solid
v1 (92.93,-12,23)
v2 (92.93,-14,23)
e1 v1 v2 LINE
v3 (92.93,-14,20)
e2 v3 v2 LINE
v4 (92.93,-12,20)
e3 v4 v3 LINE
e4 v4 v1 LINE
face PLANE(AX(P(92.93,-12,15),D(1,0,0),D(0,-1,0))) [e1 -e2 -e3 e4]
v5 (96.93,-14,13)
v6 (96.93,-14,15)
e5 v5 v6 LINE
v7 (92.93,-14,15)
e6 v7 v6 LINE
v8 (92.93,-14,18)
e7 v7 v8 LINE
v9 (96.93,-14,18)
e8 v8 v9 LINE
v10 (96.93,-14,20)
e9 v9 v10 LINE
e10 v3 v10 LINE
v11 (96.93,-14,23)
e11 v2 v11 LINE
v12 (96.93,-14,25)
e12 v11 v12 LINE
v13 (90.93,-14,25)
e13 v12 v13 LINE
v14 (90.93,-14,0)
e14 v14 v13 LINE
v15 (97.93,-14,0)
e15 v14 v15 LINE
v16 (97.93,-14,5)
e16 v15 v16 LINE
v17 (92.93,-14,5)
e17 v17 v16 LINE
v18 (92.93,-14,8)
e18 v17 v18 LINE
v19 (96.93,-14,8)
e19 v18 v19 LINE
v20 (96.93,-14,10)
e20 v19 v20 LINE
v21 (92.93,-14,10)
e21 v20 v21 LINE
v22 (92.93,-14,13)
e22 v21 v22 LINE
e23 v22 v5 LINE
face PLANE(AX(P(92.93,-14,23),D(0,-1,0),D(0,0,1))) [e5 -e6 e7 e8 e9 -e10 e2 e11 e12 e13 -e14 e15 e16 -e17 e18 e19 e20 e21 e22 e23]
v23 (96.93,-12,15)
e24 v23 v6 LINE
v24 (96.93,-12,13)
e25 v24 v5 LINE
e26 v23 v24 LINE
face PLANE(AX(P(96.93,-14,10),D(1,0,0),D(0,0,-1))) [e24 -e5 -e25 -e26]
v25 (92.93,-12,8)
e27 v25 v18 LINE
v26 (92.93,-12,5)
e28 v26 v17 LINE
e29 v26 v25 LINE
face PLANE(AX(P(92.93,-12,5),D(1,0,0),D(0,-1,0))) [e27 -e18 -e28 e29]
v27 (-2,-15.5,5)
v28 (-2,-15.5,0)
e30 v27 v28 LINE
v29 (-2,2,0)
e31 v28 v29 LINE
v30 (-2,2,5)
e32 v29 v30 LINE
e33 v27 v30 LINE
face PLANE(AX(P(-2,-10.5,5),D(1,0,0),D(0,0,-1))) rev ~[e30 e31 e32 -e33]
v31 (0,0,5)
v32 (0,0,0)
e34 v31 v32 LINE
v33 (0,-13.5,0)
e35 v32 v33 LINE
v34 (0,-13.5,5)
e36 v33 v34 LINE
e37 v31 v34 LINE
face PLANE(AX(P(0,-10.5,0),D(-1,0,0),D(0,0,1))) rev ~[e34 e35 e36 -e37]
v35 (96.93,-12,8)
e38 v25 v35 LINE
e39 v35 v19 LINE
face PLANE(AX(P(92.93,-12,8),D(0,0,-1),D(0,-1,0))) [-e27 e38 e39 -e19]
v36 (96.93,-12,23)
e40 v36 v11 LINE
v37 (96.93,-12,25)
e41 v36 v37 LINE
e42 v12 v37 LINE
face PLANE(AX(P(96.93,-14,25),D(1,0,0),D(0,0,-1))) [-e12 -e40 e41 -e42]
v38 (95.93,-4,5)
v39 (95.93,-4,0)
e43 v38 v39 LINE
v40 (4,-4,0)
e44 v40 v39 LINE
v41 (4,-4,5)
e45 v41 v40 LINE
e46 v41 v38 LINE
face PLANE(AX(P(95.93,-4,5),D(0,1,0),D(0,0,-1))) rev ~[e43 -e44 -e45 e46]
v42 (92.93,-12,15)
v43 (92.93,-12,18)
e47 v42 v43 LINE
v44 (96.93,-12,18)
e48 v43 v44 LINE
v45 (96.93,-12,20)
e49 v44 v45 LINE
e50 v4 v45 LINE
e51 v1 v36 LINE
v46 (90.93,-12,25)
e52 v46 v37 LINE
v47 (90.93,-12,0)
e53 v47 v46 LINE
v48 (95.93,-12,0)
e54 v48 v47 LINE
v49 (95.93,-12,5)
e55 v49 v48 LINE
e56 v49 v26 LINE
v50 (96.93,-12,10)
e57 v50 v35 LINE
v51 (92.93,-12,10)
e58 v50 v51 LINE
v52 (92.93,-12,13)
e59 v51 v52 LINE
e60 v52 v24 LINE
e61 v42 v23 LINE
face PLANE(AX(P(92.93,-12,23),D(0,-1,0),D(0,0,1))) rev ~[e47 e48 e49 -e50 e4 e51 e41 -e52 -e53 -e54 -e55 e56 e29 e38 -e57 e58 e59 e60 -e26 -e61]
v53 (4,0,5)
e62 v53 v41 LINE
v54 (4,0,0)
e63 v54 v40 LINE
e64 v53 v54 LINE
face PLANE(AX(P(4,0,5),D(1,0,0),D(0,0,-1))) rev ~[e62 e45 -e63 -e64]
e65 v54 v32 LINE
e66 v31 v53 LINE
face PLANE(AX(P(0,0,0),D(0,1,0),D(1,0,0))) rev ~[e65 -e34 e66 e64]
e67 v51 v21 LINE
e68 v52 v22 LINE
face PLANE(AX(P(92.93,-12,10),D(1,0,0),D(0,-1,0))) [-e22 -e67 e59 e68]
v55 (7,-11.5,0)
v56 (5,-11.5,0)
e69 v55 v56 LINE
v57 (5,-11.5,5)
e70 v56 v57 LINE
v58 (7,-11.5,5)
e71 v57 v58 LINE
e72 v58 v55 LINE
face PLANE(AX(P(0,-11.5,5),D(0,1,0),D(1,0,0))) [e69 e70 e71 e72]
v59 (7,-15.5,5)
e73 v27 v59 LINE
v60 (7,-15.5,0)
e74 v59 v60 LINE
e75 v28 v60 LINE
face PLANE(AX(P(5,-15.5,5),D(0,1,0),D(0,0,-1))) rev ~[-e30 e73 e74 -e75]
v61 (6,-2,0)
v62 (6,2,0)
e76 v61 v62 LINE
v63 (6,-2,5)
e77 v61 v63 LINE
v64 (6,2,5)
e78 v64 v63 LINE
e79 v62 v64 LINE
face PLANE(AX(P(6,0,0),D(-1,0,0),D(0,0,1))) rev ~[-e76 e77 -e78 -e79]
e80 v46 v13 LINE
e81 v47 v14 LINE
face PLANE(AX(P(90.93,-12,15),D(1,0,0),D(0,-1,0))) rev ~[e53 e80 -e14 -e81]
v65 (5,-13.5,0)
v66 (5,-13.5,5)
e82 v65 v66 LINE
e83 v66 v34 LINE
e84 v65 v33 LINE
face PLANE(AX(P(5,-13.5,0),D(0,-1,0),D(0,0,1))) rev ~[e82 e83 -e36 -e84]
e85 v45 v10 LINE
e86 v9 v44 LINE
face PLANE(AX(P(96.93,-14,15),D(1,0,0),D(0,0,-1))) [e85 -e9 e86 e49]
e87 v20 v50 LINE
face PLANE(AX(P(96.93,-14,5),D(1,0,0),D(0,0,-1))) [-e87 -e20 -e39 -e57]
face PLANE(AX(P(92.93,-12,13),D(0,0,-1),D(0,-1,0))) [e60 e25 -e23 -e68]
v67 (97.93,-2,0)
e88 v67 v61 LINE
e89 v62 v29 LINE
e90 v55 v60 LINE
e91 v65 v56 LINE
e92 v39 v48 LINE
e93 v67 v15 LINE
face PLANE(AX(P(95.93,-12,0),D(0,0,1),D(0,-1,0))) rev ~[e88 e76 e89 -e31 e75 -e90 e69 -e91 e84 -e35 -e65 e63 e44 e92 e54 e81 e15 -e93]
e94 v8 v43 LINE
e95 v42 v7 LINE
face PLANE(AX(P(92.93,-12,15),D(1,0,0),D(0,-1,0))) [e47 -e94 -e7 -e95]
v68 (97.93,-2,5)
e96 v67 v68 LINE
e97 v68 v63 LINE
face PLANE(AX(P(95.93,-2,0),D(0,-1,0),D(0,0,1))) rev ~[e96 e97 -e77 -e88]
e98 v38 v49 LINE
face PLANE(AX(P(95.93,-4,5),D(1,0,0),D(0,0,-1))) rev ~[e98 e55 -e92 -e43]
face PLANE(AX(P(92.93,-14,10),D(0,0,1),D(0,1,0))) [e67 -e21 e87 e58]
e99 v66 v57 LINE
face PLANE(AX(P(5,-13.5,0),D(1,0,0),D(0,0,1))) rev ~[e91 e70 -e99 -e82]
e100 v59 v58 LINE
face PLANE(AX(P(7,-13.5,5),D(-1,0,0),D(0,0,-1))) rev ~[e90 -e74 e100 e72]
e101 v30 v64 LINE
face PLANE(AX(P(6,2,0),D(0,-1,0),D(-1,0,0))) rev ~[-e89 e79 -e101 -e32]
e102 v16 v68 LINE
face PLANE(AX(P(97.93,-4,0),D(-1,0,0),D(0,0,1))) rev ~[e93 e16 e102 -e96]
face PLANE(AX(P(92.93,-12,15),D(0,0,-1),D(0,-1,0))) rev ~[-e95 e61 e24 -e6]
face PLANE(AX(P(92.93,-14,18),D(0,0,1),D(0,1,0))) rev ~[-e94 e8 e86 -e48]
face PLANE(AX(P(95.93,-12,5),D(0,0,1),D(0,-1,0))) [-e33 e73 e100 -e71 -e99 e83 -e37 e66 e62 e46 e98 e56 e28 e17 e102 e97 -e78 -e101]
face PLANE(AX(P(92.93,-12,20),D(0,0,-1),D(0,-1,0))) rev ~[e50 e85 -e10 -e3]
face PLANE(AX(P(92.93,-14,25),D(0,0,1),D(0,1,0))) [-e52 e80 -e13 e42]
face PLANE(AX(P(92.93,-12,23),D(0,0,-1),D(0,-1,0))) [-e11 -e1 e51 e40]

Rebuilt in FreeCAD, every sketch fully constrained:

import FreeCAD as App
import Part
import Sketcher


def add_polygon(sketch, points):
    """Adds a closed chain of lines whose ends are joined by coincident constraints."""
    first, n = sketch.GeometryCount, len(points)
    for a, b in zip(points, points[1:] + points[:1]):
        sketch.addGeometry(Part.LineSegment(App.Vector(*a, 0), App.Vector(*b, 0)), False)
    for i in range(n):
        sketch.addConstraint(Sketcher.Constraint("Coincident", first + i, 2, first + (i + 1) % n, 1))

doc = App.newDocument("Part")
body = doc.addObject("PartDesign::Body", "Body")

sketch1 = doc.addObject("Sketcher::SketchObject", "Sketch")
body.addObject(sketch1)
sketch1.AttachmentSupport = (doc.XY_Plane, [""])
sketch1.MapMode = "FlatFace"
add_polygon(sketch1, [(0, 2), (0, 0), (6, 0), (6, 2)])
sketch1.addConstraint([
    Sketcher.Constraint("Vertical", 0),
    Sketcher.Constraint("Horizontal", 1),
    Sketcher.Constraint("Vertical", 2),
    Sketcher.Constraint("Horizontal", 3),
    Sketcher.Constraint("Coincident", 0, 2, -1, 1),
    Sketcher.Constraint("DistanceX", 1, 1, 1, 2, 6.0),
    Sketcher.Constraint("DistanceY", 0, 2, 0, 1, 2.0),
])
pad1 = doc.addObject("PartDesign::Pad", "Pad")
body.addObject(pad1)
pad1.Profile = sketch1
pad1.Length = 5

sketch2 = doc.addObject("Sketcher::SketchObject", "Sketch001")
body.addObject(sketch2)
sketch2.AttachmentSupport = (doc.YZ_Plane, [""])
sketch2.MapMode = "FlatFace"
add_polygon(sketch2, [(2, 5), (2, 0), (0, 0), (0, 5)])
sketch2.addConstraint([
    Sketcher.Constraint("Vertical", 0),
    Sketcher.Constraint("Horizontal", 1),
    Sketcher.Constraint("Vertical", 2),
    Sketcher.Constraint("Horizontal", 3),
    Sketcher.Constraint("Coincident", 1, 2, -1, 1),
    Sketcher.Constraint("DistanceX", 1, 2, 1, 1, 2.0),
    Sketcher.Constraint("DistanceY", 0, 2, 0, 1, 5.0),
])
pad2 = doc.addObject("PartDesign::Pad", "Pad001")
body.addObject(pad2)
pad2.Profile = sketch2
pad2.Length = 2
pad2.Reversed = True

sketch3 = doc.addObject("Sketcher::SketchObject", "Sketch002")
body.addObject(sketch3)
sketch3.AttachmentSupport = (doc.XZ_Plane, [""])
sketch3.MapMode = "FlatFace"
add_polygon(sketch3, [(0, 5), (-2, 5), (-2, 0), (0, 0)])
sketch3.addConstraint([
    Sketcher.Constraint("Horizontal", 0),
    Sketcher.Constraint("Vertical", 1),
    Sketcher.Constraint("Horizontal", 2),
    Sketcher.Constraint("Vertical", 3),
    Sketcher.Constraint("Coincident", 2, 2, -1, 1),
    Sketcher.Constraint("DistanceX", 0, 2, 0, 1, 2.0),
    Sketcher.Constraint("DistanceY", 1, 2, 1, 1, 5.0),
])
pad3 = doc.addObject("PartDesign::Pad", "Pad002")
body.addObject(pad3)
pad3.Profile = sketch3
pad3.Length = 10.5

sketch4 = doc.addObject("Sketcher::SketchObject", "Sketch003")
body.addObject(sketch4)
sketch4.AttachmentSupport = (doc.XZ_Plane, [""])
sketch4.MapMode = "FlatFace"
add_polygon(sketch4, [(6, 0), (6, 5), (4, 5), (4, 0)])
sketch4.addConstraint([
    Sketcher.Constraint("Vertical", 0),
    Sketcher.Constraint("Horizontal", 1),
    Sketcher.Constraint("Vertical", 2),
    Sketcher.Constraint("Horizontal", 3),
    Sketcher.Constraint("PointOnObject", 2, 2, -1),
    Sketcher.Constraint("DistanceX", 1, 2, 1, 1, 2.0),
    Sketcher.Constraint("DistanceY", 0, 1, 0, 2, 5.0),
    Sketcher.Constraint("DistanceX", -1, 1, 0, 2, 6.0),
])
pad4 = doc.addObject("PartDesign::Pad", "Pad003")
body.addObject(pad4)
pad4.Profile = sketch4
pad4.Length = 4

sketch5 = doc.addObject("Sketcher::SketchObject", "Sketch004")
body.addObject(sketch5)
sketch5.AttachmentSupport = (doc.YZ_Plane, [""])
sketch5.MapMode = "FlatFace"
sketch5.AttachmentOffset = App.Placement(App.Vector(0, 0, 6), App.Rotation())
add_polygon(sketch5, [(-2, 5), (-4, 5), (-4, 0), (-2, 0)])
sketch5.addConstraint([
    Sketcher.Constraint("Horizontal", 0),
    Sketcher.Constraint("Vertical", 1),
    Sketcher.Constraint("Horizontal", 2),
    Sketcher.Constraint("Vertical", 3),
    Sketcher.Constraint("PointOnObject", 1, 2, -1),
    Sketcher.Constraint("DistanceX", 0, 2, 0, 1, 2.0),
    Sketcher.Constraint("DistanceX", 2, 2, -1, 1, 2.0),
    Sketcher.Constraint("DistanceY", 1, 2, 1, 1, 5.0),
])
pad5 = doc.addObject("PartDesign::Pad", "Pad004")
body.addObject(pad5)
pad5.Profile = sketch5
pad5.Length = 89.93

sketch6 = doc.addObject("Sketcher::SketchObject", "Sketch005")
body.addObject(sketch6)
sketch6.AttachmentSupport = (doc.YZ_Plane, [""])
sketch6.MapMode = "FlatFace"
sketch6.AttachmentOffset = App.Placement(App.Vector(0, 0, 95.93), App.Rotation())
add_polygon(sketch6, [(-2, 5), (-4, 5), (-4, 0), (-2, 0)])
sketch6.addConstraint([
    Sketcher.Constraint("Horizontal", 0),
    Sketcher.Constraint("Vertical", 1),
    Sketcher.Constraint("Horizontal", 2),
    Sketcher.Constraint("Vertical", 3),
    Sketcher.Constraint("PointOnObject", 1, 2, -1),
    Sketcher.Constraint("DistanceX", 0, 2, 0, 1, 2.0),
    Sketcher.Constraint("DistanceY", 1, 2, 1, 1, 5.0),
    Sketcher.Constraint("DistanceX", 0, 2, -1, 1, 4.0),
])
pad6 = doc.addObject("PartDesign::Pad", "Pad005")
body.addObject(pad6)
pad6.Profile = sketch6
pad6.Length = 2

sketch7 = doc.addObject("Sketcher::SketchObject", "Sketch006")
body.addObject(sketch7)
sketch7.AttachmentSupport = (doc.XZ_Plane, [""])
sketch7.MapMode = "FlatFace"
sketch7.AttachmentOffset = App.Placement(App.Vector(0, 0, 4), App.Rotation())
add_polygon(sketch7, [(95.93, 5), (95.93, 0), (97.93, 0), (97.93, 5)])
sketch7.addConstraint([
    Sketcher.Constraint("Vertical", 0),
    Sketcher.Constraint("Horizontal", 1),
    Sketcher.Constraint("Vertical", 2),
    Sketcher.Constraint("Horizontal", 3),
    Sketcher.Constraint("PointOnObject", 0, 2, -1),
    Sketcher.Constraint("DistanceX", 1, 1, 1, 2, 2.0),
    Sketcher.Constraint("DistanceY", 0, 2, 0, 1, 5.0),
    Sketcher.Constraint("DistanceX", -1, 1, 0, 2, 95.93),
])
pad7 = doc.addObject("PartDesign::Pad", "Pad006")
body.addObject(pad7)
pad7.Profile = sketch7
pad7.Length = 10

sketch8 = doc.addObject("Sketcher::SketchObject", "Sketch007")
body.addObject(sketch8)
sketch8.AttachmentSupport = (doc.XZ_Plane, [""])
sketch8.MapMode = "FlatFace"
sketch8.AttachmentOffset = App.Placement(App.Vector(0, 0, 10.5), App.Rotation())
add_polygon(sketch8, [(-2, 0), (0, 0), (0, 5), (-2, 5)])
sketch8.addConstraint([
    Sketcher.Constraint("Horizontal", 0),
    Sketcher.Constraint("Vertical", 1),
    Sketcher.Constraint("Horizontal", 2),
    Sketcher.Constraint("Vertical", 3),
    Sketcher.Constraint("Coincident", 0, 2, -1, 1),
    Sketcher.Constraint("DistanceX", 0, 1, 0, 2, 2.0),
    Sketcher.Constraint("DistanceY", 1, 1, 1, 2, 5.0),
])
pad8 = doc.addObject("PartDesign::Pad", "Pad007")
body.addObject(pad8)
pad8.Profile = sketch8
pad8.Length = 5

sketch9 = doc.addObject("Sketcher::SketchObject", "Sketch008")
body.addObject(sketch9)
sketch9.AttachmentSupport = (doc.YZ_Plane, [""])
sketch9.MapMode = "FlatFace"
add_polygon(sketch9, [(-13.5, 0), (-13.5, 5), (-15.5, 5), (-15.5, 0)])
sketch9.addConstraint([
    Sketcher.Constraint("Vertical", 0),
    Sketcher.Constraint("Horizontal", 1),
    Sketcher.Constraint("Vertical", 2),
    Sketcher.Constraint("Horizontal", 3),
    Sketcher.Constraint("PointOnObject", 2, 2, -1),
    Sketcher.Constraint("DistanceX", 1, 2, 1, 1, 2.0),
    Sketcher.Constraint("DistanceY", 0, 1, 0, 2, 5.0),
    Sketcher.Constraint("DistanceX", 0, 2, -1, 1, 13.5),
])
pad9 = doc.addObject("PartDesign::Pad", "Pad008")
body.addObject(pad9)
pad9.Profile = sketch9
pad9.Length = 5

sketch10 = doc.addObject("Sketcher::SketchObject", "Sketch009")
body.addObject(sketch10)
sketch10.AttachmentSupport = (doc.YZ_Plane, [""])
sketch10.MapMode = "FlatFace"
sketch10.AttachmentOffset = App.Placement(App.Vector(0, 0, 5), App.Rotation())
add_polygon(sketch10, [(-13.5, 5), (-15.5, 5), (-15.5, 0), (-13.5, 0)])
sketch10.addConstraint([
    Sketcher.Constraint("Horizontal", 0),
    Sketcher.Constraint("Vertical", 1),
    Sketcher.Constraint("Horizontal", 2),
    Sketcher.Constraint("Vertical", 3),
    Sketcher.Constraint("PointOnObject", 1, 2, -1),
    Sketcher.Constraint("DistanceX", 0, 2, 0, 1, 2.0),
    Sketcher.Constraint("DistanceY", 1, 2, 1, 1, 5.0),
    Sketcher.Constraint("DistanceX", 0, 2, -1, 1, 15.5),
])
pad10 = doc.addObject("PartDesign::Pad", "Pad009")
body.addObject(pad10)
pad10.Profile = sketch10
pad10.Length = 2

sketch11 = doc.addObject("Sketcher::SketchObject", "Sketch010")
body.addObject(sketch11)
sketch11.AttachmentSupport = (doc.XZ_Plane, [""])
sketch11.MapMode = "FlatFace"
sketch11.AttachmentOffset = App.Placement(App.Vector(0, 0, 13.5), App.Rotation())
add_polygon(sketch11, [(5, 0), (5, 5), (7, 5), (7, 0)])
sketch11.addConstraint([
    Sketcher.Constraint("Vertical", 0),
    Sketcher.Constraint("Horizontal", 1),
    Sketcher.Constraint("Vertical", 2),
    Sketcher.Constraint("Horizontal", 3),
    Sketcher.Constraint("PointOnObject", 2, 2, -1),
    Sketcher.Constraint("DistanceX", 1, 1, 1, 2, 2.0),
    Sketcher.Constraint("DistanceY", 0, 1, 0, 2, 5.0),
    Sketcher.Constraint("DistanceX", -1, 1, 0, 2, 5.0),
])
pad11 = doc.addObject("PartDesign::Pad", "Pad010")
body.addObject(pad11)
pad11.Profile = sketch11
pad11.Length = 2
pad11.Reversed = True

sketch12 = doc.addObject("Sketcher::SketchObject", "Sketch011")
body.addObject(sketch12)
sketch12.AttachmentSupport = (doc.YZ_Plane, [""])
sketch12.MapMode = "FlatFace"
sketch12.AttachmentOffset = App.Placement(App.Vector(0, 0, 95.93), App.Rotation())
add_polygon(sketch12, [(-14, 5), (-12, 5), (-12, 0), (-14, 0)])
sketch12.addConstraint([
    Sketcher.Constraint("Horizontal", 0),
    Sketcher.Constraint("Vertical", 1),
    Sketcher.Constraint("Horizontal", 2),
    Sketcher.Constraint("Vertical", 3),
    Sketcher.Constraint("PointOnObject", 1, 2, -1),
    Sketcher.Constraint("DistanceX", 0, 1, 0, 2, 2.0),
    Sketcher.Constraint("DistanceY", 1, 2, 1, 1, 5.0),
    Sketcher.Constraint("DistanceX", 0, 2, -1, 1, 12.0),
])
pad12 = doc.addObject("PartDesign::Pad", "Pad011")
body.addObject(pad12)
pad12.Profile = sketch12
pad12.Length = 5
pad12.Reversed = True

sketch13 = doc.addObject("Sketcher::SketchObject", "Sketch012")
body.addObject(sketch13)
sketch13.AttachmentSupport = (doc.XY_Plane, [""])
sketch13.MapMode = "FlatFace"
sketch13.AttachmentOffset = App.Placement(App.Vector(0, 0, 5), App.Rotation())
add_polygon(sketch13, [(90.93, -14), (92.93, -14), (92.93, -12), (90.93, -12)])
sketch13.addConstraint([
    Sketcher.Constraint("Horizontal", 0),
    Sketcher.Constraint("Vertical", 1),
    Sketcher.Constraint("Horizontal", 2),
    Sketcher.Constraint("Vertical", 3),
    Sketcher.Constraint("Equal", 2, 1),
    Sketcher.Constraint("DistanceX", 0, 1, 0, 2, 2.0),
    Sketcher.Constraint("DistanceY", 0, 2, -1, 1, 14.0),
    Sketcher.Constraint("DistanceX", -1, 1, 0, 2, 92.93),
])
pad13 = doc.addObject("PartDesign::Pad", "Pad012")
body.addObject(pad13)
pad13.Profile = sketch13
pad13.Length = 5

sketch14 = doc.addObject("Sketcher::SketchObject", "Sketch013")
body.addObject(sketch14)
sketch14.AttachmentSupport = (doc.YZ_Plane, [""])
sketch14.MapMode = "FlatFace"
sketch14.AttachmentOffset = App.Placement(App.Vector(0, 0, 92.93), App.Rotation())
add_polygon(sketch14, [(-14, 10), (-14, 8), (-12, 8), (-12, 10)])
sketch14.addConstraint([
    Sketcher.Constraint("Vertical", 0),
    Sketcher.Constraint("Horizontal", 1),
    Sketcher.Constraint("Vertical", 2),
    Sketcher.Constraint("Horizontal", 3),
    Sketcher.Constraint("Equal", 3, 0),
    Sketcher.Constraint("DistanceX", 1, 1, 1, 2, 2.0),
    Sketcher.Constraint("DistanceX", 0, 2, -1, 1, 14.0),
    Sketcher.Constraint("DistanceY", -1, 1, 0, 2, 8.0),
])
pad14 = doc.addObject("PartDesign::Pad", "Pad013")
body.addObject(pad14)
pad14.Profile = sketch14
pad14.Length = 4

sketch15 = doc.addObject("Sketcher::SketchObject", "Sketch014")
body.addObject(sketch15)
sketch15.AttachmentSupport = (doc.XY_Plane, [""])
sketch15.MapMode = "FlatFace"
sketch15.AttachmentOffset = App.Placement(App.Vector(0, 0, 10), App.Rotation())
add_polygon(sketch15, [(92.93, -12), (90.93, -12), (90.93, -14), (92.93, -14)])
sketch15.addConstraint([
    Sketcher.Constraint("Horizontal", 0),
    Sketcher.Constraint("Vertical", 1),
    Sketcher.Constraint("Horizontal", 2),
    Sketcher.Constraint("Vertical", 3),
    Sketcher.Constraint("Equal", 2, 1),
    Sketcher.Constraint("DistanceX", 0, 2, 0, 1, 2.0),
    Sketcher.Constraint("DistanceY", 0, 2, -1, 1, 12.0),
    Sketcher.Constraint("DistanceX", -1, 1, 0, 2, 90.93),
])
pad15 = doc.addObject("PartDesign::Pad", "Pad014")
body.addObject(pad15)
pad15.Profile = sketch15
pad15.Length = 5

sketch16 = doc.addObject("Sketcher::SketchObject", "Sketch015")
body.addObject(sketch16)
sketch16.AttachmentSupport = (doc.YZ_Plane, [""])
sketch16.MapMode = "FlatFace"
sketch16.AttachmentOffset = App.Placement(App.Vector(0, 0, 92.93), App.Rotation())
add_polygon(sketch16, [(-12, 13), (-12, 15), (-14, 15), (-14, 13)])
sketch16.addConstraint([
    Sketcher.Constraint("Vertical", 0),
    Sketcher.Constraint("Horizontal", 1),
    Sketcher.Constraint("Vertical", 2),
    Sketcher.Constraint("Horizontal", 3),
    Sketcher.Constraint("Equal", 3, 0),
    Sketcher.Constraint("DistanceX", 1, 2, 1, 1, 2.0),
    Sketcher.Constraint("DistanceX", 0, 2, -1, 1, 12.0),
    Sketcher.Constraint("DistanceY", -1, 1, 0, 2, 15.0),
])
pad16 = doc.addObject("PartDesign::Pad", "Pad015")
body.addObject(pad16)
pad16.Profile = sketch16
pad16.Length = 4

sketch17 = doc.addObject("Sketcher::SketchObject", "Sketch016")
body.addObject(sketch17)
sketch17.AttachmentSupport = (doc.XY_Plane, [""])
sketch17.MapMode = "FlatFace"
sketch17.AttachmentOffset = App.Placement(App.Vector(0, 0, 15), App.Rotation())
add_polygon(sketch17, [(92.93, -12), (90.93, -12), (90.93, -14), (92.93, -14)])
sketch17.addConstraint([
    Sketcher.Constraint("Horizontal", 0),
    Sketcher.Constraint("Vertical", 1),
    Sketcher.Constraint("Horizontal", 2),
    Sketcher.Constraint("Vertical", 3),
    Sketcher.Constraint("Equal", 2, 1),
    Sketcher.Constraint("DistanceX", 0, 2, 0, 1, 2.0),
    Sketcher.Constraint("DistanceY", 0, 2, -1, 1, 12.0),
    Sketcher.Constraint("DistanceX", -1, 1, 0, 2, 90.93),
])
pad17 = doc.addObject("PartDesign::Pad", "Pad016")
body.addObject(pad17)
pad17.Profile = sketch17
pad17.Length = 10

sketch18 = doc.addObject("Sketcher::SketchObject", "Sketch017")
body.addObject(sketch18)
sketch18.AttachmentSupport = (doc.YZ_Plane, [""])
sketch18.MapMode = "FlatFace"
sketch18.AttachmentOffset = App.Placement(App.Vector(0, 0, 92.93), App.Rotation())
add_polygon(sketch18, [(-14, 18), (-12, 18), (-12, 20), (-14, 20)])
sketch18.addConstraint([
    Sketcher.Constraint("Horizontal", 0),
    Sketcher.Constraint("Vertical", 1),
    Sketcher.Constraint("Horizontal", 2),
    Sketcher.Constraint("Vertical", 3),
    Sketcher.Constraint("Equal", 2, 1),
    Sketcher.Constraint("DistanceX", 0, 1, 0, 2, 2.0),
    Sketcher.Constraint("DistanceX", 0, 2, -1, 1, 12.0),
    Sketcher.Constraint("DistanceY", -1, 1, 0, 2, 18.0),
])
pad18 = doc.addObject("PartDesign::Pad", "Pad017")
body.addObject(pad18)
pad18.Profile = sketch18
pad18.Length = 4

sketch19 = doc.addObject("Sketcher::SketchObject", "Sketch018")
body.addObject(sketch19)
sketch19.AttachmentSupport = (doc.YZ_Plane, [""])
sketch19.MapMode = "FlatFace"
sketch19.AttachmentOffset = App.Placement(App.Vector(0, 0, 92.93), App.Rotation())
add_polygon(sketch19, [(-14, 23), (-12, 23), (-12, 25), (-14, 25)])
sketch19.addConstraint([
    Sketcher.Constraint("Horizontal", 0),
    Sketcher.Constraint("Vertical", 1),
    Sketcher.Constraint("Horizontal", 2),
    Sketcher.Constraint("Vertical", 3),
    Sketcher.Constraint("Equal", 2, 1),
    Sketcher.Constraint("DistanceX", 0, 1, 0, 2, 2.0),
    Sketcher.Constraint("DistanceX", 0, 2, -1, 1, 12.0),
    Sketcher.Constraint("DistanceY", -1, 1, 0, 2, 23.0),
])
pad19 = doc.addObject("PartDesign::Pad", "Pad018")
body.addObject(pad19)
pad19.Profile = sketch19
pad19.Length = 4

doc.recompute()
